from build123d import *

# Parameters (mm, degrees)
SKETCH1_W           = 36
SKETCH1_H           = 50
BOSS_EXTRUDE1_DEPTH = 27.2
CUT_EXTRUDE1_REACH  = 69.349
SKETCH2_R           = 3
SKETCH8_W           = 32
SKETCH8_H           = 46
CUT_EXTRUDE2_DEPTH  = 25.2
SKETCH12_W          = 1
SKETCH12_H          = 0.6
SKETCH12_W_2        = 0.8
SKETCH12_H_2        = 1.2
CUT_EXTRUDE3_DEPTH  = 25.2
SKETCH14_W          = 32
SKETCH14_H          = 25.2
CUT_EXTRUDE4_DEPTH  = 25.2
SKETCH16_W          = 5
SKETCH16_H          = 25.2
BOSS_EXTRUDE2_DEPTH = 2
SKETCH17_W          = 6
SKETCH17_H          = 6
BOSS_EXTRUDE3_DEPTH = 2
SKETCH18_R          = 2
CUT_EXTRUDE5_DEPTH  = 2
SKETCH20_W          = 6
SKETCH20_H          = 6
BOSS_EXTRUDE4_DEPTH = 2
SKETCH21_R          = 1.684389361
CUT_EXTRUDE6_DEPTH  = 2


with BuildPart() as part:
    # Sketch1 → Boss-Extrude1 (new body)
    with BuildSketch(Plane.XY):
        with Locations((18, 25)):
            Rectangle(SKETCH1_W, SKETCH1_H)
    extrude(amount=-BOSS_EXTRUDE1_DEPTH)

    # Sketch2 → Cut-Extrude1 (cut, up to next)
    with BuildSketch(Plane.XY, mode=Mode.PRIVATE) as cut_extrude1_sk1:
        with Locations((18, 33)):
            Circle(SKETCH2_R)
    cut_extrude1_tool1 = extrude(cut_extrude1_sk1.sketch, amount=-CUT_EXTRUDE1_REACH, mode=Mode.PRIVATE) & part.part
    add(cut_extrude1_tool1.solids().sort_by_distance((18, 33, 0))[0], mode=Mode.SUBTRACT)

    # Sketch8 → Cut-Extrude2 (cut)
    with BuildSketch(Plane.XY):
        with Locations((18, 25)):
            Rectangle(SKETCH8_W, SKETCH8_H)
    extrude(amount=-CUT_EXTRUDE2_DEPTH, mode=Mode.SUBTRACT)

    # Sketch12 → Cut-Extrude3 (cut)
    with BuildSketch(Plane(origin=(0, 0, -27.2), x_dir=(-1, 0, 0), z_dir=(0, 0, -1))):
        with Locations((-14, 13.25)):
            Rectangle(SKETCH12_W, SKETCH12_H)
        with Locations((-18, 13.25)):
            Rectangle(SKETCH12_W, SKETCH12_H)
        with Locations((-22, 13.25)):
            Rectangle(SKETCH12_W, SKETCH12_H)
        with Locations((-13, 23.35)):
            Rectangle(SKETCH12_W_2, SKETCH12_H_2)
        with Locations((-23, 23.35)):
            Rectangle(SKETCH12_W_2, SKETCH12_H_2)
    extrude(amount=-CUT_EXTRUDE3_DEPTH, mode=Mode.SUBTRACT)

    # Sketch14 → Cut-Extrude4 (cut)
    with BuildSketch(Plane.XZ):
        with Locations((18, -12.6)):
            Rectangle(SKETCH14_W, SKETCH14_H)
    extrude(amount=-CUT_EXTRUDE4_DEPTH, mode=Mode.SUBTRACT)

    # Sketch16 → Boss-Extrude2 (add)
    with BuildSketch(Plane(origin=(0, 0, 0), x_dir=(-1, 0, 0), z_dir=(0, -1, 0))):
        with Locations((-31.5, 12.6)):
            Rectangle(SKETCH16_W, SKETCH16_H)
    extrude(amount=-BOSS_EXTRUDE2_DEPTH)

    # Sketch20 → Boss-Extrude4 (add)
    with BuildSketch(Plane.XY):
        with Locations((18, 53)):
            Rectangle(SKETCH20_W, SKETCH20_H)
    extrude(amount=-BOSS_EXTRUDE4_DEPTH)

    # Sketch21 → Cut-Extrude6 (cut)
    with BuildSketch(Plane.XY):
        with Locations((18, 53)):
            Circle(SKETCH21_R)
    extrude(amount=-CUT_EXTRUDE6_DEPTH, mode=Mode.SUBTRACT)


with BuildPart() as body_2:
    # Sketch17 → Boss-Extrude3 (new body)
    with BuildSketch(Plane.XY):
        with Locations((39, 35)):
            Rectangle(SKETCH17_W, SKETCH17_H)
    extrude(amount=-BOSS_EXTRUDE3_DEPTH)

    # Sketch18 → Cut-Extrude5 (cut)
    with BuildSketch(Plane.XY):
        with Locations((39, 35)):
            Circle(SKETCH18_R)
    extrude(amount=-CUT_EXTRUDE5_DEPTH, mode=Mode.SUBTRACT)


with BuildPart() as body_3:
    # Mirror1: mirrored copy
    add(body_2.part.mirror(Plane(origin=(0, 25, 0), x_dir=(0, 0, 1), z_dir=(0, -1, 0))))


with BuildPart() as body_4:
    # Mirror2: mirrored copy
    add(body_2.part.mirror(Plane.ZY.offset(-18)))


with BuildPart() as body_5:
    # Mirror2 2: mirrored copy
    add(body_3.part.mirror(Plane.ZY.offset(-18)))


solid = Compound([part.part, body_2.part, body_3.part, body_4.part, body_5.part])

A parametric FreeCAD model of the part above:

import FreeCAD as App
import Part
import Sketcher
Q = App.Units.Quantity


def add_polygon(sketch, points):
    """Adds a closed chain of lines whose ends are joined by coincident constraints."""
    first, n = sketch.GeometryCount, len(points)
    for a, b in zip(points, points[1:] + points[:1]):
        sketch.addGeometry(Part.LineSegment(App.Vector(*a, 0), App.Vector(*b, 0)), False)
    for i in range(n):
        sketch.addConstraint(Sketcher.Constraint("Coincident", first + i, 2, first + (i + 1) % n, 1))

doc = App.newDocument("Part")
params = doc.addObject("Spreadsheet::Sheet", "Params")
for row, (alias, value) in enumerate([
    ("sketch1_width", "36 mm"),
    ("sketch1_height", "50 mm"),
    ("pad1_length", "27.2 mm"),
    ("sketch2_diameter", "6 mm"),
    ("sketch3_width", "32 mm"),
    ("sketch3_height", "46 mm"),
    ("pocket2_length", "25.2 mm"),
    ("sketch4_width", "1 mm"),
    ("sketch4_width2", "0.8 mm"),
    ("sketch4_height", "0.6 mm"),
    ("sketch4_height2", "1.2 mm"),
    ("pocket3_length", "25.2 mm"),
    ("sketch5_width", "32 mm"),
    ("sketch5_height", "25.2 mm"),
    ("pocket4_length", "25.2 mm"),
    ("sketch6_width", "5 mm"),
    ("sketch6_height", "25.2 mm"),
    ("pad2_length", "2 mm"),
    ("sketch7_width", "6 mm"),
    ("pad3_length", "2 mm"),
    ("pocket5_length", "2 mm"),
    ("sketch9_width", "6 mm"),
    ("pad4_length", "2 mm"),
    ("sketch10_diameter", "4 mm"),
    ("pocket6_length", "2 mm"),
], start=1):
    params.set(f"A{row}", alias)
    params.set(f"B{row}", "=" + value)
    params.setAlias(f"B{row}", alias)

body = doc.addObject("PartDesign::Body", "Body")

# Sketch on XY plane
sketch1 = doc.addObject("Sketcher::SketchObject", "Sketch")
body.addObject(sketch1)
sketch1.AttachmentSupport = (doc.XY_Plane, [""])
sketch1.MapMode = "FlatFace"
add_polygon(sketch1, [(0, 50), (0, 0), (36, 0), (36, 50)])  # lines 0-3
sketch1.addConstraint([
    Sketcher.Constraint("Vertical", 0),
    Sketcher.Constraint("Horizontal", 1),
    Sketcher.Constraint("Vertical", 2),
    Sketcher.Constraint("Horizontal", 3),
    Sketcher.Constraint("Coincident", 0, 2, -1, 1),
    Sketcher.Constraint("DistanceX", 1, 1, 1, 2, Q("36 mm")),
    Sketcher.Constraint("DistanceY", 0, 2, 0, 1, Q("50 mm")),
])
sketch1.setExpression("Constraints[9]", "Params.sketch1_width")
sketch1.setExpression("Constraints[10]", "Params.sketch1_height")
pad1 = doc.addObject("PartDesign::Pad", "Pad")
body.addObject(pad1)
pad1.Profile = sketch1
pad1.setExpression("Length", "Params.pad1_length")
pad1.Reversed = True

# Sketch on XY plane
sketch2 = doc.addObject("Sketcher::SketchObject", "Sketch001")
body.addObject(sketch2)
sketch2.AttachmentSupport = (doc.XY_Plane, [""])
sketch2.MapMode = "FlatFace"
sketch2.addGeometry(Part.Circle(App.Vector(18, 33, 0), App.Vector(0, 0, 1), 3), False)
sketch2.addConstraint([
    Sketcher.Constraint("Diameter", 0, Q("6 mm")),
    Sketcher.Constraint("DistanceX", -1, 1, 0, 3, Q("18 mm")),
    Sketcher.Constraint("DistanceY", -1, 1, 0, 3, Q("33 mm")),
])
sketch2.setExpression("Constraints[0]", "Params.sketch2_diameter")
pocket1 = doc.addObject("PartDesign::Pocket", "Pocket")
body.addObject(pocket1)
pocket1.Profile = sketch2
pocket1.Type = "UpToFirst"

# Sketch on XY plane
sketch3 = doc.addObject("Sketcher::SketchObject", "Sketch002")
body.addObject(sketch3)
sketch3.AttachmentSupport = (doc.XY_Plane, [""])
sketch3.MapMode = "FlatFace"
add_polygon(sketch3, [(2, 48), (2, 2), (34, 2), (34, 48)])  # lines 0-3
sketch3.addConstraint([
    Sketcher.Constraint("Vertical", 0),
    Sketcher.Constraint("Horizontal", 1),
    Sketcher.Constraint("Vertical", 2),
    Sketcher.Constraint("Horizontal", 3),
    Sketcher.Constraint("DistanceX", 1, 1, 1, 2, Q("32 mm")),
    Sketcher.Constraint("DistanceY", 0, 2, 0, 1, Q("46 mm")),
    Sketcher.Constraint("DistanceX", -1, 1, 0, 2, Q("2 mm")),
    Sketcher.Constraint("DistanceY", -1, 1, 0, 2, Q("2 mm")),
])
sketch3.setExpression("Constraints[8]", "Params.sketch3_width")
sketch3.setExpression("Constraints[9]", "Params.sketch3_height")
pocket2 = doc.addObject("PartDesign::Pocket", "Pocket001")
body.addObject(pocket2)
pocket2.Profile = sketch3
pocket2.setExpression("Length", "Params.pocket2_length")

# Sketch on XY plane
sketch4 = doc.addObject("Sketcher::SketchObject", "Sketch003")
body.addObject(sketch4)
sketch4.AttachmentSupport = (doc.XY_Plane, [""])
sketch4.MapMode = "FlatFace"
sketch4.AttachmentOffset = App.Placement(App.Vector(0, 0, -27.2), App.Rotation())
add_polygon(sketch4, [(14.5, 13.6), (14.5, 12.9), (13.5, 12.9), (13.5, 13.6)])  # lines 0-3
add_polygon(sketch4, [(18.5, 13.6), (18.5, 12.9), (17.5, 12.9), (17.5, 13.6)])  # lines 4-7
add_polygon(sketch4, [(22.5, 13.6), (22.5, 12.9), (21.5, 12.9), (21.5, 13.6)])  # lines 8-11
add_polygon(sketch4, [(13.4, 23.9), (13.4, 22.8), (12.6, 22.8), (12.6, 23.9)])  # lines 12-15
add_polygon(sketch4, [(23.4, 23.9), (23.4, 22.8), (22.6, 22.8), (22.6, 23.9)])  # lines 16-19
sketch4.addConstraint([
    Sketcher.Constraint("Vertical", 0),
    Sketcher.Constraint("Horizontal", 1),
    Sketcher.Constraint("Vertical", 2),
    Sketcher.Constraint("Horizontal", 3),
    Sketcher.Constraint("Vertical", 4),
    Sketcher.Constraint("Horizontal", 5),
    Sketcher.Constraint("Vertical", 6),
    Sketcher.Constraint("Horizontal", 7),
    Sketcher.Constraint("Vertical", 8),
    Sketcher.Constraint("Horizontal", 9),
    Sketcher.Constraint("Vertical", 10),
    Sketcher.Constraint("Horizontal", 11),
    Sketcher.Constraint("Vertical", 12),
    Sketcher.Constraint("Horizontal", 13),
    Sketcher.Constraint("Vertical", 14),
    Sketcher.Constraint("Horizontal", 15),
    Sketcher.Constraint("Vertical", 16),
    Sketcher.Constraint("Horizontal", 17),
    Sketcher.Constraint("Vertical", 18),
    Sketcher.Constraint("Horizontal", 19),
    Sketcher.Constraint("Horizontal", 1, 2, 4, 2),
    Sketcher.Constraint("Horizontal", 3, 2, 6, 2),
    Sketcher.Constraint("Horizontal", 5, 2, 8, 2),
    Sketcher.Constraint("Horizontal", 7, 2, 10, 2),
    Sketcher.Constraint("Horizontal", 13, 2, 16, 2),
    Sketcher.Constraint("Horizontal", 15, 2, 18, 2),
    Sketcher.Constraint("Equal", 3, 5),
    Sketcher.Constraint("Equal", 7, 9),
    Sketcher.Constraint("Equal", 15, 17),
    Sketcher.Constraint("DistanceX", 1, 2, 1, 1, Q("1 mm")),
    Sketcher.Constraint("DistanceX", 13, 2, 13, 1, Q("0.8 mm")),
    Sketcher.Constraint("DistanceY", 0, 2, 0, 1, Q("0.6 mm")),
    Sketcher.Constraint("DistanceY", 12, 2, 12, 1, Q("1.2 mm")),
    Sketcher.Constraint("DistanceX", 0, 2, 4, 2, Q("4 mm")),
    Sketcher.Constraint("DistanceX", 4, 2, 8, 2, Q("4 mm")),
    Sketcher.Constraint("DistanceY", 1, 2, 14, 2, Q("11 mm")),
    Sketcher.Constraint("DistanceX", 12, 2, 16, 2, Q("10 mm")),
    Sketcher.Constraint("DistanceX", -1, 1, 0, 2, Q("14.5 mm")),
    Sketcher.Constraint("DistanceX", -1, 1, 12, 2, Q("13.4 mm")),
    Sketcher.Constraint("DistanceY", -1, 1, 0, 2, Q("12.95 mm")),
])
sketch4.setExpression("Constraints[49]", "Params.sketch4_width")
sketch4.setExpression("Constraints[50]", "Params.sketch4_width2")
sketch4.setExpression("Constraints[51]", "Params.sketch4_height")
sketch4.setExpression("Constraints[52]", "Params.sketch4_height2")
pocket3 = doc.addObject("PartDesign::Pocket", "Pocket002")
body.addObject(pocket3)
pocket3.Profile = sketch4
pocket3.setExpression("Length", "Params.pocket3_length")
pocket3.Reversed = True

# Sketch on XZ plane
sketch5 = doc.addObject("Sketcher::SketchObject", "Sketch004")
body.addObject(sketch5)
sketch5.AttachmentSupport = (doc.XZ_Plane, [""])
sketch5.MapMode = "FlatFace"
add_polygon(sketch5, [(2, 0), (2, -25), (34, -25), (34, 0)])  # lines 0-3
sketch5.addConstraint([
    Sketcher.Constraint("Vertical", 0),
    Sketcher.Constraint("Horizontal", 1),
    Sketcher.Constraint("Vertical", 2),
    Sketcher.Constraint("Horizontal", 3),
    Sketcher.Constraint("PointOnObject", 2, 2, -1),
    Sketcher.Constraint("DistanceX", 1, 1, 1, 2, Q("32 mm")),
    Sketcher.Constraint("DistanceY", 0, 2, 0, 1, Q("25.2 mm")),
    Sketcher.Constraint("DistanceX", -1, 1, 0, 2, Q("2 mm")),
])
sketch5.setExpression("Constraints[9]", "Params.sketch5_width")
sketch5.setExpression("Constraints[10]", "Params.sketch5_height")
pocket4 = doc.addObject("PartDesign::Pocket", "Pocket003")
body.addObject(pocket4)
pocket4.Profile = sketch5
pocket4.setExpression("Length", "Params.pocket4_length")

# Sketch on XZ plane
sketch6 = doc.addObject("Sketcher::SketchObject", "Sketch005")
body.addObject(sketch6)
sketch6.AttachmentSupport = (doc.XZ_Plane, [""])
sketch6.MapMode = "FlatFace"
add_polygon(sketch6, [(34, -25), (34, 0), (29, 0), (29, -25)])  # lines 0-3
sketch6.addConstraint([
    Sketcher.Constraint("Vertical", 0),
    Sketcher.Constraint("Horizontal", 1),
    Sketcher.Constraint("Vertical", 2),
    Sketcher.Constraint("Horizontal", 3),
    Sketcher.Constraint("PointOnObject", 0, 2, -1),
    Sketcher.Constraint("DistanceX", 1, 2, 1, 1, Q("5 mm")),
    Sketcher.Constraint("DistanceY", 0, 1, 0, 2, Q("25.2 mm")),
    Sketcher.Constraint("DistanceX", -1, 1, 0, 2, Q("34 mm")),
])
sketch6.setExpression("Constraints[9]", "Params.sketch6_width")
sketch6.setExpression("Constraints[10]", "Params.sketch6_height")
pad2 = doc.addObject("PartDesign::Pad", "Pad001")
body.addObject(pad2)
pad2.Profile = sketch6
pad2.setExpression("Length", "Params.pad2_length")
pad2.Reversed = True

# Sketch on XY plane
sketch7 = doc.addObject("Sketcher::SketchObject", "Sketch006")
body.addObject(sketch7)
sketch7.AttachmentSupport = (doc.XY_Plane, [""])
sketch7.MapMode = "FlatFace"
add_polygon(sketch7, [(15, 56), (15, 50), (21, 50), (21, 56)])  # lines 0-3
sketch7.addConstraint([
    Sketcher.Constraint("Vertical", 0),
    Sketcher.Constraint("Horizontal", 1),
    Sketcher.Constraint("Vertical", 2),
    Sketcher.Constraint("Horizontal", 3),
    Sketcher.Constraint("Equal", 3, 0),
    Sketcher.Constraint("DistanceX", 1, 1, 1, 2, Q("6 mm")),
    Sketcher.Constraint("DistanceX", -1, 1, 0, 2, Q("15 mm")),
    Sketcher.Constraint("DistanceY", -1, 1, 0, 2, Q("50 mm")),
])
sketch7.setExpression("Constraints[9]", "Params.sketch7_width")
pad3 = doc.addObject("PartDesign::Pad", "Pad002")
body.addObject(pad3)
pad3.Profile = sketch7
pad3.setExpression("Length", "Params.pad3_length")
pad3.Reversed = True

# Sketch on XY plane
sketch8 = doc.addObject("Sketcher::SketchObject", "Sketch007")
body.addObject(sketch8)
sketch8.AttachmentSupport = (doc.XY_Plane, [""])
sketch8.MapMode = "FlatFace"
sketch8.addGeometry(Part.Circle(App.Vector(18, 53, 0), App.Vector(0, 0, 1), 1.7), False)
sketch8.addConstraint([
    Sketcher.Constraint("DistanceX", -1, 1, 0, 3, Q("18 mm")),
    Sketcher.Constraint("DistanceY", -1, 1, 0, 3, Q("53 mm")),
    Sketcher.Constraint("Diameter", 0, Q("3.368779 mm")),
])
pocket5 = doc.addObject("PartDesign::Pocket", "Pocket004")
body.addObject(pocket5)
pocket5.Profile = sketch8
pocket5.setExpression("Length", "Params.pocket5_length")
body2 = doc.addObject("PartDesign::Body", "Body001")

# Sketch on XY plane
sketch9 = doc.addObject("Sketcher::SketchObject", "Sketch008")
body2.addObject(sketch9)
sketch9.AttachmentSupport = (doc.getObject("XY_Plane001"), [""])
sketch9.MapMode = "FlatFace"
add_polygon(sketch9, [(36, 38), (36, 32), (42, 32), (42, 38)])  # lines 0-3
sketch9.addConstraint([
    Sketcher.Constraint("Vertical", 0),
    Sketcher.Constraint("Horizontal", 1),
    Sketcher.Constraint("Vertical", 2),
    Sketcher.Constraint("Horizontal", 3),
    Sketcher.Constraint("Equal", 3, 0),
    Sketcher.Constraint("DistanceX", 1, 1, 1, 2, Q("6 mm")),
    Sketcher.Constraint("DistanceX", -1, 1, 0, 2, Q("36 mm")),
    Sketcher.Constraint("DistanceY", -1, 1, 0, 2, Q("32 mm")),
])
sketch9.setExpression("Constraints[9]", "Params.sketch9_width")
pad4 = doc.addObject("PartDesign::Pad", "Pad003")
body2.addObject(pad4)
pad4.Profile = sketch9
pad4.setExpression("Length", "Params.pad4_length")
pad4.Reversed = True

# Sketch on XY plane
sketch10 = doc.addObject("Sketcher::SketchObject", "Sketch009")
body2.addObject(sketch10)
sketch10.AttachmentSupport = (doc.getObject("XY_Plane001"), [""])
sketch10.MapMode = "FlatFace"
sketch10.addGeometry(Part.Circle(App.Vector(39, 35, 0), App.Vector(0, 0, 1), 2), False)
sketch10.addConstraint([
    Sketcher.Constraint("Diameter", 0, Q("4 mm")),
    Sketcher.Constraint("DistanceX", -1, 1, 0, 3, Q("39 mm")),
    Sketcher.Constraint("DistanceY", -1, 1, 0, 3, Q("35 mm")),
])
sketch10.setExpression("Constraints[0]", "Params.sketch10_diameter")
pocket6 = doc.addObject("PartDesign::Pocket", "Pocket005")
body2.addObject(pocket6)
pocket6.Profile = sketch10
pocket6.setExpression("Length", "Params.pocket6_length")
body3 = doc.addObject("PartDesign::Body", "Body002")
doc.recompute()

mirroring = doc.addObject("Part::Mirroring", "Mirroring")
mirroring.Source = body2
mirroring.Base = App.Vector(0, 25, 0)
mirroring.Normal = App.Vector(0, -1, 0)
body3.BaseFeature = mirroring
doc.recompute()
body4 = doc.addObject("PartDesign::Body", "Body003")
doc.recompute()

mirroring2 = doc.addObject("Part::Mirroring", "Mirroring001")
mirroring2.Source = body2
mirroring2.Base = App.Vector(18, 0, 0)
mirroring2.Normal = App.Vector(-1, 0, 0)
body4.BaseFeature = mirroring2
doc.recompute()
body5 = doc.addObject("PartDesign::Body", "Body004")
doc.recompute()

mirroring3 = doc.addObject("Part::Mirroring", "Mirroring002")
mirroring3.Source = body3
mirroring3.Base = App.Vector(18, 0, 0)
mirroring3.Normal = App.Vector(-1, 0, 0)
body5.BaseFeature = mirroring3
doc.recompute()
mirroring.Visibility = False
mirroring2.Visibility = False
mirroring3.Visibility = False

doc.recompute()
